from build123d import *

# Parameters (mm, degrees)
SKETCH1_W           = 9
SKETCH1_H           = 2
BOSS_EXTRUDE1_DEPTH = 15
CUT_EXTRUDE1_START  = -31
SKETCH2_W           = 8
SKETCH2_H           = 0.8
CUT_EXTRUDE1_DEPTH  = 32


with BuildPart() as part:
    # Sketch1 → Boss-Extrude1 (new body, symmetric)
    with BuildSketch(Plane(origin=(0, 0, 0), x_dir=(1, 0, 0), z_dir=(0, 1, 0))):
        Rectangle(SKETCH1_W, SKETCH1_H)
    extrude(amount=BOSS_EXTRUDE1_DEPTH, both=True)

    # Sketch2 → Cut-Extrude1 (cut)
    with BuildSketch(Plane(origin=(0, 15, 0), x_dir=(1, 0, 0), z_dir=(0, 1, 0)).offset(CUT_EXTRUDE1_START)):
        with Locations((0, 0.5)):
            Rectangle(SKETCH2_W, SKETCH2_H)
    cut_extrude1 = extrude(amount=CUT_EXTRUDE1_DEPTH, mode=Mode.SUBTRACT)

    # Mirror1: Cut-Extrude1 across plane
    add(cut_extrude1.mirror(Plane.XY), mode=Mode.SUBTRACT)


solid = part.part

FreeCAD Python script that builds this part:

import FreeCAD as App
import Part
import Sketcher

V = App.Vector
Q = App.Units.Quantity


def add_polygon(sketch, points):
    """Adds a closed chain of lines whose ends are joined by coincident constraints."""
    first, n = sketch.GeometryCount, len(points)
    for a, b in zip(points, points[1:] + points[:1]):
        sketch.addGeometry(Part.LineSegment(App.Vector(*a, 0), App.Vector(*b, 0)), False)
    for i in range(n):
        sketch.addConstraint(Sketcher.Constraint("Coincident", first + i, 2, first + (i + 1) % n, 1))

doc = App.newDocument("Part")
body = doc.addObject("PartDesign::Body", "Body")

# Sketch on XZ plane
sketch1 = body.newObject("Sketcher::SketchObject", "Sketch")
sketch1.AttachmentSupport = (doc.getObject("XZ_Plane"), [""])
sketch1.MapMode = "FlatFace"
add_polygon(sketch1, [(-4.5, -1), (-4.5, 1), (4.5, 1), (4.5, -1)])  # lines 0-3
sketch1.addConstraint([
    Sketcher.Constraint("Vertical", 0),
    Sketcher.Constraint("Horizontal", 1),
    Sketcher.Constraint("Vertical", 2),
    Sketcher.Constraint("Horizontal", 3),
    Sketcher.Constraint("Symmetric", 0, 2, 2, 2, -1, 1),
    Sketcher.Constraint("DistanceX", 1, 1, 1, 2, Q("9 mm")),
    Sketcher.Constraint("DistanceY", 0, 1, 0, 2, Q("2 mm")),
])
pad1 = body.newObject("PartDesign::Pad", "Pad")
pad1.Profile = sketch1
pad1.Length = 30
pad1.Midplane = True

# Sketch on XZ plane
sketch2 = body.newObject("Sketcher::SketchObject", "Sketch001")
sketch2.AttachmentSupport = (doc.getObject("XZ_Plane"), [""])
sketch2.MapMode = "FlatFace"
sketch2.AttachmentOffset = App.Placement(V(0, 0, 16), App.Rotation())
add_polygon(sketch2, [(-4, -0.9), (-4, -0.1), (4, -0.1), (4, -0.9)])  # lines 0-3
sketch2.addConstraint([
    Sketcher.Constraint("Vertical", 0),
    Sketcher.Constraint("Horizontal", 1),
    Sketcher.Constraint("Vertical", 2),
    Sketcher.Constraint("Horizontal", 3),
    Sketcher.Constraint("DistanceX", 1, 1, 1, 2, Q("8 mm")),
    Sketcher.Constraint("DistanceY", 0, 1, 0, 2, Q("0.8 mm")),
    Sketcher.Constraint("DistanceX", 0, 2, -1, 1, Q("4 mm")),
    Sketcher.Constraint("DistanceY", 0, 2, -1, 1, Q("0.1 mm")),
])
pocket1 = body.newObject("PartDesign::Pocket", "Pocket")
pocket1.Profile = sketch2
pocket1.Length = 32
doc.recompute()

mirrored = body.newObject("PartDesign::Mirrored", "Mirrored")
mirrored.Originals = [pocket1]
mirrored.MirrorPlane = (doc.getObject("XY_Plane"), [""])
body.Tip = mirrored

doc.recompute()
